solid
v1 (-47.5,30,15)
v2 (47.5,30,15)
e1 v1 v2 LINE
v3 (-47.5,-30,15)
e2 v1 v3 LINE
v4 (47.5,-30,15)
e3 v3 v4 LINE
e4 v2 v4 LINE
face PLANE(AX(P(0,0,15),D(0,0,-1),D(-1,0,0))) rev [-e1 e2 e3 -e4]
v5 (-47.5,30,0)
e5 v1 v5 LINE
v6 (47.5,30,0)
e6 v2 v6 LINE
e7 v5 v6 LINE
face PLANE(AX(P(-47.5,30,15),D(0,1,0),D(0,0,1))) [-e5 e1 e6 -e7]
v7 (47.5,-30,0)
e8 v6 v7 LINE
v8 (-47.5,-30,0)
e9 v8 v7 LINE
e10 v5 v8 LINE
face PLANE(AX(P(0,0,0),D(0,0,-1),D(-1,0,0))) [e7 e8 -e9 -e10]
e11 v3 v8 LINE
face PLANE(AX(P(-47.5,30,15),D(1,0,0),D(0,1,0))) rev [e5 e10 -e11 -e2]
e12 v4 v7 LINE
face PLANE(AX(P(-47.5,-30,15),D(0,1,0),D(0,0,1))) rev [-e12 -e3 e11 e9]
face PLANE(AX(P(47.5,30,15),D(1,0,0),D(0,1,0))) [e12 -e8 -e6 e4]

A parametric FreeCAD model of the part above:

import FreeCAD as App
import Part
import Sketcher

doc = App.newDocument("Part")
params = doc.addObject("Spreadsheet::Sheet", "Params")
for row, (alias, value) in enumerate([
    ("sketch1_width", "95 mm"),
    ("sketch1_height", "60 mm"),
    ("pad1_length", "15 mm"),
], start=1):
    params.set(f"A{row}", alias)
    params.set(f"B{row}", "=" + value)
    params.setAlias(f"B{row}", alias)

body = doc.addObject("PartDesign::Body", "Body")

sketch1 = doc.addObject("Sketcher::SketchObject", "Sketch")
body.addObject(sketch1)
sketch1.AttachmentSupport = (doc.XY_Plane, [""])
sketch1.MapMode = "FlatFace"
sketch1.addGeometry([
    Part.LineSegment(App.Vector(-47.5, 30, 0), App.Vector(-47.5, -30, 0)),
    Part.LineSegment(App.Vector(-47.5, -30, 0), App.Vector(47.5, -30, 0)),
    Part.LineSegment(App.Vector(47.5, -30, 0), App.Vector(47.5, 30, 0)),
    Part.LineSegment(App.Vector(47.5, 30, 0), App.Vector(-47.5, 30, 0)),
], False)
sketch1.addConstraint([
    Sketcher.Constraint("Coincident", 0, 2, 1, 1),
    Sketcher.Constraint("Coincident", 1, 2, 2, 1),
    Sketcher.Constraint("Coincident", 2, 2, 3, 1),
    Sketcher.Constraint("Coincident", 3, 2, 0, 1),
    Sketcher.Constraint("Vertical", 0),
    Sketcher.Constraint("Horizontal", 1),
    Sketcher.Constraint("Vertical", 2),
    Sketcher.Constraint("Horizontal", 3),
    Sketcher.Constraint("Symmetric", 0, 2, 2, 2, -1, 1),
    Sketcher.Constraint("DistanceX", 1, 1, 1, 2, 95.0),
    Sketcher.Constraint("DistanceY", 0, 2, 0, 1, 60.0),
])
sketch1.setExpression("Constraints[9]", "Params.sketch1_width")
sketch1.setExpression("Constraints[10]", "Params.sketch1_height")
pad1 = doc.addObject("PartDesign::Pad", "Pad")
body.addObject(pad1)
pad1.Profile = sketch1
pad1.setExpression("Length", "Params.pad1_length")

doc.recompute()
